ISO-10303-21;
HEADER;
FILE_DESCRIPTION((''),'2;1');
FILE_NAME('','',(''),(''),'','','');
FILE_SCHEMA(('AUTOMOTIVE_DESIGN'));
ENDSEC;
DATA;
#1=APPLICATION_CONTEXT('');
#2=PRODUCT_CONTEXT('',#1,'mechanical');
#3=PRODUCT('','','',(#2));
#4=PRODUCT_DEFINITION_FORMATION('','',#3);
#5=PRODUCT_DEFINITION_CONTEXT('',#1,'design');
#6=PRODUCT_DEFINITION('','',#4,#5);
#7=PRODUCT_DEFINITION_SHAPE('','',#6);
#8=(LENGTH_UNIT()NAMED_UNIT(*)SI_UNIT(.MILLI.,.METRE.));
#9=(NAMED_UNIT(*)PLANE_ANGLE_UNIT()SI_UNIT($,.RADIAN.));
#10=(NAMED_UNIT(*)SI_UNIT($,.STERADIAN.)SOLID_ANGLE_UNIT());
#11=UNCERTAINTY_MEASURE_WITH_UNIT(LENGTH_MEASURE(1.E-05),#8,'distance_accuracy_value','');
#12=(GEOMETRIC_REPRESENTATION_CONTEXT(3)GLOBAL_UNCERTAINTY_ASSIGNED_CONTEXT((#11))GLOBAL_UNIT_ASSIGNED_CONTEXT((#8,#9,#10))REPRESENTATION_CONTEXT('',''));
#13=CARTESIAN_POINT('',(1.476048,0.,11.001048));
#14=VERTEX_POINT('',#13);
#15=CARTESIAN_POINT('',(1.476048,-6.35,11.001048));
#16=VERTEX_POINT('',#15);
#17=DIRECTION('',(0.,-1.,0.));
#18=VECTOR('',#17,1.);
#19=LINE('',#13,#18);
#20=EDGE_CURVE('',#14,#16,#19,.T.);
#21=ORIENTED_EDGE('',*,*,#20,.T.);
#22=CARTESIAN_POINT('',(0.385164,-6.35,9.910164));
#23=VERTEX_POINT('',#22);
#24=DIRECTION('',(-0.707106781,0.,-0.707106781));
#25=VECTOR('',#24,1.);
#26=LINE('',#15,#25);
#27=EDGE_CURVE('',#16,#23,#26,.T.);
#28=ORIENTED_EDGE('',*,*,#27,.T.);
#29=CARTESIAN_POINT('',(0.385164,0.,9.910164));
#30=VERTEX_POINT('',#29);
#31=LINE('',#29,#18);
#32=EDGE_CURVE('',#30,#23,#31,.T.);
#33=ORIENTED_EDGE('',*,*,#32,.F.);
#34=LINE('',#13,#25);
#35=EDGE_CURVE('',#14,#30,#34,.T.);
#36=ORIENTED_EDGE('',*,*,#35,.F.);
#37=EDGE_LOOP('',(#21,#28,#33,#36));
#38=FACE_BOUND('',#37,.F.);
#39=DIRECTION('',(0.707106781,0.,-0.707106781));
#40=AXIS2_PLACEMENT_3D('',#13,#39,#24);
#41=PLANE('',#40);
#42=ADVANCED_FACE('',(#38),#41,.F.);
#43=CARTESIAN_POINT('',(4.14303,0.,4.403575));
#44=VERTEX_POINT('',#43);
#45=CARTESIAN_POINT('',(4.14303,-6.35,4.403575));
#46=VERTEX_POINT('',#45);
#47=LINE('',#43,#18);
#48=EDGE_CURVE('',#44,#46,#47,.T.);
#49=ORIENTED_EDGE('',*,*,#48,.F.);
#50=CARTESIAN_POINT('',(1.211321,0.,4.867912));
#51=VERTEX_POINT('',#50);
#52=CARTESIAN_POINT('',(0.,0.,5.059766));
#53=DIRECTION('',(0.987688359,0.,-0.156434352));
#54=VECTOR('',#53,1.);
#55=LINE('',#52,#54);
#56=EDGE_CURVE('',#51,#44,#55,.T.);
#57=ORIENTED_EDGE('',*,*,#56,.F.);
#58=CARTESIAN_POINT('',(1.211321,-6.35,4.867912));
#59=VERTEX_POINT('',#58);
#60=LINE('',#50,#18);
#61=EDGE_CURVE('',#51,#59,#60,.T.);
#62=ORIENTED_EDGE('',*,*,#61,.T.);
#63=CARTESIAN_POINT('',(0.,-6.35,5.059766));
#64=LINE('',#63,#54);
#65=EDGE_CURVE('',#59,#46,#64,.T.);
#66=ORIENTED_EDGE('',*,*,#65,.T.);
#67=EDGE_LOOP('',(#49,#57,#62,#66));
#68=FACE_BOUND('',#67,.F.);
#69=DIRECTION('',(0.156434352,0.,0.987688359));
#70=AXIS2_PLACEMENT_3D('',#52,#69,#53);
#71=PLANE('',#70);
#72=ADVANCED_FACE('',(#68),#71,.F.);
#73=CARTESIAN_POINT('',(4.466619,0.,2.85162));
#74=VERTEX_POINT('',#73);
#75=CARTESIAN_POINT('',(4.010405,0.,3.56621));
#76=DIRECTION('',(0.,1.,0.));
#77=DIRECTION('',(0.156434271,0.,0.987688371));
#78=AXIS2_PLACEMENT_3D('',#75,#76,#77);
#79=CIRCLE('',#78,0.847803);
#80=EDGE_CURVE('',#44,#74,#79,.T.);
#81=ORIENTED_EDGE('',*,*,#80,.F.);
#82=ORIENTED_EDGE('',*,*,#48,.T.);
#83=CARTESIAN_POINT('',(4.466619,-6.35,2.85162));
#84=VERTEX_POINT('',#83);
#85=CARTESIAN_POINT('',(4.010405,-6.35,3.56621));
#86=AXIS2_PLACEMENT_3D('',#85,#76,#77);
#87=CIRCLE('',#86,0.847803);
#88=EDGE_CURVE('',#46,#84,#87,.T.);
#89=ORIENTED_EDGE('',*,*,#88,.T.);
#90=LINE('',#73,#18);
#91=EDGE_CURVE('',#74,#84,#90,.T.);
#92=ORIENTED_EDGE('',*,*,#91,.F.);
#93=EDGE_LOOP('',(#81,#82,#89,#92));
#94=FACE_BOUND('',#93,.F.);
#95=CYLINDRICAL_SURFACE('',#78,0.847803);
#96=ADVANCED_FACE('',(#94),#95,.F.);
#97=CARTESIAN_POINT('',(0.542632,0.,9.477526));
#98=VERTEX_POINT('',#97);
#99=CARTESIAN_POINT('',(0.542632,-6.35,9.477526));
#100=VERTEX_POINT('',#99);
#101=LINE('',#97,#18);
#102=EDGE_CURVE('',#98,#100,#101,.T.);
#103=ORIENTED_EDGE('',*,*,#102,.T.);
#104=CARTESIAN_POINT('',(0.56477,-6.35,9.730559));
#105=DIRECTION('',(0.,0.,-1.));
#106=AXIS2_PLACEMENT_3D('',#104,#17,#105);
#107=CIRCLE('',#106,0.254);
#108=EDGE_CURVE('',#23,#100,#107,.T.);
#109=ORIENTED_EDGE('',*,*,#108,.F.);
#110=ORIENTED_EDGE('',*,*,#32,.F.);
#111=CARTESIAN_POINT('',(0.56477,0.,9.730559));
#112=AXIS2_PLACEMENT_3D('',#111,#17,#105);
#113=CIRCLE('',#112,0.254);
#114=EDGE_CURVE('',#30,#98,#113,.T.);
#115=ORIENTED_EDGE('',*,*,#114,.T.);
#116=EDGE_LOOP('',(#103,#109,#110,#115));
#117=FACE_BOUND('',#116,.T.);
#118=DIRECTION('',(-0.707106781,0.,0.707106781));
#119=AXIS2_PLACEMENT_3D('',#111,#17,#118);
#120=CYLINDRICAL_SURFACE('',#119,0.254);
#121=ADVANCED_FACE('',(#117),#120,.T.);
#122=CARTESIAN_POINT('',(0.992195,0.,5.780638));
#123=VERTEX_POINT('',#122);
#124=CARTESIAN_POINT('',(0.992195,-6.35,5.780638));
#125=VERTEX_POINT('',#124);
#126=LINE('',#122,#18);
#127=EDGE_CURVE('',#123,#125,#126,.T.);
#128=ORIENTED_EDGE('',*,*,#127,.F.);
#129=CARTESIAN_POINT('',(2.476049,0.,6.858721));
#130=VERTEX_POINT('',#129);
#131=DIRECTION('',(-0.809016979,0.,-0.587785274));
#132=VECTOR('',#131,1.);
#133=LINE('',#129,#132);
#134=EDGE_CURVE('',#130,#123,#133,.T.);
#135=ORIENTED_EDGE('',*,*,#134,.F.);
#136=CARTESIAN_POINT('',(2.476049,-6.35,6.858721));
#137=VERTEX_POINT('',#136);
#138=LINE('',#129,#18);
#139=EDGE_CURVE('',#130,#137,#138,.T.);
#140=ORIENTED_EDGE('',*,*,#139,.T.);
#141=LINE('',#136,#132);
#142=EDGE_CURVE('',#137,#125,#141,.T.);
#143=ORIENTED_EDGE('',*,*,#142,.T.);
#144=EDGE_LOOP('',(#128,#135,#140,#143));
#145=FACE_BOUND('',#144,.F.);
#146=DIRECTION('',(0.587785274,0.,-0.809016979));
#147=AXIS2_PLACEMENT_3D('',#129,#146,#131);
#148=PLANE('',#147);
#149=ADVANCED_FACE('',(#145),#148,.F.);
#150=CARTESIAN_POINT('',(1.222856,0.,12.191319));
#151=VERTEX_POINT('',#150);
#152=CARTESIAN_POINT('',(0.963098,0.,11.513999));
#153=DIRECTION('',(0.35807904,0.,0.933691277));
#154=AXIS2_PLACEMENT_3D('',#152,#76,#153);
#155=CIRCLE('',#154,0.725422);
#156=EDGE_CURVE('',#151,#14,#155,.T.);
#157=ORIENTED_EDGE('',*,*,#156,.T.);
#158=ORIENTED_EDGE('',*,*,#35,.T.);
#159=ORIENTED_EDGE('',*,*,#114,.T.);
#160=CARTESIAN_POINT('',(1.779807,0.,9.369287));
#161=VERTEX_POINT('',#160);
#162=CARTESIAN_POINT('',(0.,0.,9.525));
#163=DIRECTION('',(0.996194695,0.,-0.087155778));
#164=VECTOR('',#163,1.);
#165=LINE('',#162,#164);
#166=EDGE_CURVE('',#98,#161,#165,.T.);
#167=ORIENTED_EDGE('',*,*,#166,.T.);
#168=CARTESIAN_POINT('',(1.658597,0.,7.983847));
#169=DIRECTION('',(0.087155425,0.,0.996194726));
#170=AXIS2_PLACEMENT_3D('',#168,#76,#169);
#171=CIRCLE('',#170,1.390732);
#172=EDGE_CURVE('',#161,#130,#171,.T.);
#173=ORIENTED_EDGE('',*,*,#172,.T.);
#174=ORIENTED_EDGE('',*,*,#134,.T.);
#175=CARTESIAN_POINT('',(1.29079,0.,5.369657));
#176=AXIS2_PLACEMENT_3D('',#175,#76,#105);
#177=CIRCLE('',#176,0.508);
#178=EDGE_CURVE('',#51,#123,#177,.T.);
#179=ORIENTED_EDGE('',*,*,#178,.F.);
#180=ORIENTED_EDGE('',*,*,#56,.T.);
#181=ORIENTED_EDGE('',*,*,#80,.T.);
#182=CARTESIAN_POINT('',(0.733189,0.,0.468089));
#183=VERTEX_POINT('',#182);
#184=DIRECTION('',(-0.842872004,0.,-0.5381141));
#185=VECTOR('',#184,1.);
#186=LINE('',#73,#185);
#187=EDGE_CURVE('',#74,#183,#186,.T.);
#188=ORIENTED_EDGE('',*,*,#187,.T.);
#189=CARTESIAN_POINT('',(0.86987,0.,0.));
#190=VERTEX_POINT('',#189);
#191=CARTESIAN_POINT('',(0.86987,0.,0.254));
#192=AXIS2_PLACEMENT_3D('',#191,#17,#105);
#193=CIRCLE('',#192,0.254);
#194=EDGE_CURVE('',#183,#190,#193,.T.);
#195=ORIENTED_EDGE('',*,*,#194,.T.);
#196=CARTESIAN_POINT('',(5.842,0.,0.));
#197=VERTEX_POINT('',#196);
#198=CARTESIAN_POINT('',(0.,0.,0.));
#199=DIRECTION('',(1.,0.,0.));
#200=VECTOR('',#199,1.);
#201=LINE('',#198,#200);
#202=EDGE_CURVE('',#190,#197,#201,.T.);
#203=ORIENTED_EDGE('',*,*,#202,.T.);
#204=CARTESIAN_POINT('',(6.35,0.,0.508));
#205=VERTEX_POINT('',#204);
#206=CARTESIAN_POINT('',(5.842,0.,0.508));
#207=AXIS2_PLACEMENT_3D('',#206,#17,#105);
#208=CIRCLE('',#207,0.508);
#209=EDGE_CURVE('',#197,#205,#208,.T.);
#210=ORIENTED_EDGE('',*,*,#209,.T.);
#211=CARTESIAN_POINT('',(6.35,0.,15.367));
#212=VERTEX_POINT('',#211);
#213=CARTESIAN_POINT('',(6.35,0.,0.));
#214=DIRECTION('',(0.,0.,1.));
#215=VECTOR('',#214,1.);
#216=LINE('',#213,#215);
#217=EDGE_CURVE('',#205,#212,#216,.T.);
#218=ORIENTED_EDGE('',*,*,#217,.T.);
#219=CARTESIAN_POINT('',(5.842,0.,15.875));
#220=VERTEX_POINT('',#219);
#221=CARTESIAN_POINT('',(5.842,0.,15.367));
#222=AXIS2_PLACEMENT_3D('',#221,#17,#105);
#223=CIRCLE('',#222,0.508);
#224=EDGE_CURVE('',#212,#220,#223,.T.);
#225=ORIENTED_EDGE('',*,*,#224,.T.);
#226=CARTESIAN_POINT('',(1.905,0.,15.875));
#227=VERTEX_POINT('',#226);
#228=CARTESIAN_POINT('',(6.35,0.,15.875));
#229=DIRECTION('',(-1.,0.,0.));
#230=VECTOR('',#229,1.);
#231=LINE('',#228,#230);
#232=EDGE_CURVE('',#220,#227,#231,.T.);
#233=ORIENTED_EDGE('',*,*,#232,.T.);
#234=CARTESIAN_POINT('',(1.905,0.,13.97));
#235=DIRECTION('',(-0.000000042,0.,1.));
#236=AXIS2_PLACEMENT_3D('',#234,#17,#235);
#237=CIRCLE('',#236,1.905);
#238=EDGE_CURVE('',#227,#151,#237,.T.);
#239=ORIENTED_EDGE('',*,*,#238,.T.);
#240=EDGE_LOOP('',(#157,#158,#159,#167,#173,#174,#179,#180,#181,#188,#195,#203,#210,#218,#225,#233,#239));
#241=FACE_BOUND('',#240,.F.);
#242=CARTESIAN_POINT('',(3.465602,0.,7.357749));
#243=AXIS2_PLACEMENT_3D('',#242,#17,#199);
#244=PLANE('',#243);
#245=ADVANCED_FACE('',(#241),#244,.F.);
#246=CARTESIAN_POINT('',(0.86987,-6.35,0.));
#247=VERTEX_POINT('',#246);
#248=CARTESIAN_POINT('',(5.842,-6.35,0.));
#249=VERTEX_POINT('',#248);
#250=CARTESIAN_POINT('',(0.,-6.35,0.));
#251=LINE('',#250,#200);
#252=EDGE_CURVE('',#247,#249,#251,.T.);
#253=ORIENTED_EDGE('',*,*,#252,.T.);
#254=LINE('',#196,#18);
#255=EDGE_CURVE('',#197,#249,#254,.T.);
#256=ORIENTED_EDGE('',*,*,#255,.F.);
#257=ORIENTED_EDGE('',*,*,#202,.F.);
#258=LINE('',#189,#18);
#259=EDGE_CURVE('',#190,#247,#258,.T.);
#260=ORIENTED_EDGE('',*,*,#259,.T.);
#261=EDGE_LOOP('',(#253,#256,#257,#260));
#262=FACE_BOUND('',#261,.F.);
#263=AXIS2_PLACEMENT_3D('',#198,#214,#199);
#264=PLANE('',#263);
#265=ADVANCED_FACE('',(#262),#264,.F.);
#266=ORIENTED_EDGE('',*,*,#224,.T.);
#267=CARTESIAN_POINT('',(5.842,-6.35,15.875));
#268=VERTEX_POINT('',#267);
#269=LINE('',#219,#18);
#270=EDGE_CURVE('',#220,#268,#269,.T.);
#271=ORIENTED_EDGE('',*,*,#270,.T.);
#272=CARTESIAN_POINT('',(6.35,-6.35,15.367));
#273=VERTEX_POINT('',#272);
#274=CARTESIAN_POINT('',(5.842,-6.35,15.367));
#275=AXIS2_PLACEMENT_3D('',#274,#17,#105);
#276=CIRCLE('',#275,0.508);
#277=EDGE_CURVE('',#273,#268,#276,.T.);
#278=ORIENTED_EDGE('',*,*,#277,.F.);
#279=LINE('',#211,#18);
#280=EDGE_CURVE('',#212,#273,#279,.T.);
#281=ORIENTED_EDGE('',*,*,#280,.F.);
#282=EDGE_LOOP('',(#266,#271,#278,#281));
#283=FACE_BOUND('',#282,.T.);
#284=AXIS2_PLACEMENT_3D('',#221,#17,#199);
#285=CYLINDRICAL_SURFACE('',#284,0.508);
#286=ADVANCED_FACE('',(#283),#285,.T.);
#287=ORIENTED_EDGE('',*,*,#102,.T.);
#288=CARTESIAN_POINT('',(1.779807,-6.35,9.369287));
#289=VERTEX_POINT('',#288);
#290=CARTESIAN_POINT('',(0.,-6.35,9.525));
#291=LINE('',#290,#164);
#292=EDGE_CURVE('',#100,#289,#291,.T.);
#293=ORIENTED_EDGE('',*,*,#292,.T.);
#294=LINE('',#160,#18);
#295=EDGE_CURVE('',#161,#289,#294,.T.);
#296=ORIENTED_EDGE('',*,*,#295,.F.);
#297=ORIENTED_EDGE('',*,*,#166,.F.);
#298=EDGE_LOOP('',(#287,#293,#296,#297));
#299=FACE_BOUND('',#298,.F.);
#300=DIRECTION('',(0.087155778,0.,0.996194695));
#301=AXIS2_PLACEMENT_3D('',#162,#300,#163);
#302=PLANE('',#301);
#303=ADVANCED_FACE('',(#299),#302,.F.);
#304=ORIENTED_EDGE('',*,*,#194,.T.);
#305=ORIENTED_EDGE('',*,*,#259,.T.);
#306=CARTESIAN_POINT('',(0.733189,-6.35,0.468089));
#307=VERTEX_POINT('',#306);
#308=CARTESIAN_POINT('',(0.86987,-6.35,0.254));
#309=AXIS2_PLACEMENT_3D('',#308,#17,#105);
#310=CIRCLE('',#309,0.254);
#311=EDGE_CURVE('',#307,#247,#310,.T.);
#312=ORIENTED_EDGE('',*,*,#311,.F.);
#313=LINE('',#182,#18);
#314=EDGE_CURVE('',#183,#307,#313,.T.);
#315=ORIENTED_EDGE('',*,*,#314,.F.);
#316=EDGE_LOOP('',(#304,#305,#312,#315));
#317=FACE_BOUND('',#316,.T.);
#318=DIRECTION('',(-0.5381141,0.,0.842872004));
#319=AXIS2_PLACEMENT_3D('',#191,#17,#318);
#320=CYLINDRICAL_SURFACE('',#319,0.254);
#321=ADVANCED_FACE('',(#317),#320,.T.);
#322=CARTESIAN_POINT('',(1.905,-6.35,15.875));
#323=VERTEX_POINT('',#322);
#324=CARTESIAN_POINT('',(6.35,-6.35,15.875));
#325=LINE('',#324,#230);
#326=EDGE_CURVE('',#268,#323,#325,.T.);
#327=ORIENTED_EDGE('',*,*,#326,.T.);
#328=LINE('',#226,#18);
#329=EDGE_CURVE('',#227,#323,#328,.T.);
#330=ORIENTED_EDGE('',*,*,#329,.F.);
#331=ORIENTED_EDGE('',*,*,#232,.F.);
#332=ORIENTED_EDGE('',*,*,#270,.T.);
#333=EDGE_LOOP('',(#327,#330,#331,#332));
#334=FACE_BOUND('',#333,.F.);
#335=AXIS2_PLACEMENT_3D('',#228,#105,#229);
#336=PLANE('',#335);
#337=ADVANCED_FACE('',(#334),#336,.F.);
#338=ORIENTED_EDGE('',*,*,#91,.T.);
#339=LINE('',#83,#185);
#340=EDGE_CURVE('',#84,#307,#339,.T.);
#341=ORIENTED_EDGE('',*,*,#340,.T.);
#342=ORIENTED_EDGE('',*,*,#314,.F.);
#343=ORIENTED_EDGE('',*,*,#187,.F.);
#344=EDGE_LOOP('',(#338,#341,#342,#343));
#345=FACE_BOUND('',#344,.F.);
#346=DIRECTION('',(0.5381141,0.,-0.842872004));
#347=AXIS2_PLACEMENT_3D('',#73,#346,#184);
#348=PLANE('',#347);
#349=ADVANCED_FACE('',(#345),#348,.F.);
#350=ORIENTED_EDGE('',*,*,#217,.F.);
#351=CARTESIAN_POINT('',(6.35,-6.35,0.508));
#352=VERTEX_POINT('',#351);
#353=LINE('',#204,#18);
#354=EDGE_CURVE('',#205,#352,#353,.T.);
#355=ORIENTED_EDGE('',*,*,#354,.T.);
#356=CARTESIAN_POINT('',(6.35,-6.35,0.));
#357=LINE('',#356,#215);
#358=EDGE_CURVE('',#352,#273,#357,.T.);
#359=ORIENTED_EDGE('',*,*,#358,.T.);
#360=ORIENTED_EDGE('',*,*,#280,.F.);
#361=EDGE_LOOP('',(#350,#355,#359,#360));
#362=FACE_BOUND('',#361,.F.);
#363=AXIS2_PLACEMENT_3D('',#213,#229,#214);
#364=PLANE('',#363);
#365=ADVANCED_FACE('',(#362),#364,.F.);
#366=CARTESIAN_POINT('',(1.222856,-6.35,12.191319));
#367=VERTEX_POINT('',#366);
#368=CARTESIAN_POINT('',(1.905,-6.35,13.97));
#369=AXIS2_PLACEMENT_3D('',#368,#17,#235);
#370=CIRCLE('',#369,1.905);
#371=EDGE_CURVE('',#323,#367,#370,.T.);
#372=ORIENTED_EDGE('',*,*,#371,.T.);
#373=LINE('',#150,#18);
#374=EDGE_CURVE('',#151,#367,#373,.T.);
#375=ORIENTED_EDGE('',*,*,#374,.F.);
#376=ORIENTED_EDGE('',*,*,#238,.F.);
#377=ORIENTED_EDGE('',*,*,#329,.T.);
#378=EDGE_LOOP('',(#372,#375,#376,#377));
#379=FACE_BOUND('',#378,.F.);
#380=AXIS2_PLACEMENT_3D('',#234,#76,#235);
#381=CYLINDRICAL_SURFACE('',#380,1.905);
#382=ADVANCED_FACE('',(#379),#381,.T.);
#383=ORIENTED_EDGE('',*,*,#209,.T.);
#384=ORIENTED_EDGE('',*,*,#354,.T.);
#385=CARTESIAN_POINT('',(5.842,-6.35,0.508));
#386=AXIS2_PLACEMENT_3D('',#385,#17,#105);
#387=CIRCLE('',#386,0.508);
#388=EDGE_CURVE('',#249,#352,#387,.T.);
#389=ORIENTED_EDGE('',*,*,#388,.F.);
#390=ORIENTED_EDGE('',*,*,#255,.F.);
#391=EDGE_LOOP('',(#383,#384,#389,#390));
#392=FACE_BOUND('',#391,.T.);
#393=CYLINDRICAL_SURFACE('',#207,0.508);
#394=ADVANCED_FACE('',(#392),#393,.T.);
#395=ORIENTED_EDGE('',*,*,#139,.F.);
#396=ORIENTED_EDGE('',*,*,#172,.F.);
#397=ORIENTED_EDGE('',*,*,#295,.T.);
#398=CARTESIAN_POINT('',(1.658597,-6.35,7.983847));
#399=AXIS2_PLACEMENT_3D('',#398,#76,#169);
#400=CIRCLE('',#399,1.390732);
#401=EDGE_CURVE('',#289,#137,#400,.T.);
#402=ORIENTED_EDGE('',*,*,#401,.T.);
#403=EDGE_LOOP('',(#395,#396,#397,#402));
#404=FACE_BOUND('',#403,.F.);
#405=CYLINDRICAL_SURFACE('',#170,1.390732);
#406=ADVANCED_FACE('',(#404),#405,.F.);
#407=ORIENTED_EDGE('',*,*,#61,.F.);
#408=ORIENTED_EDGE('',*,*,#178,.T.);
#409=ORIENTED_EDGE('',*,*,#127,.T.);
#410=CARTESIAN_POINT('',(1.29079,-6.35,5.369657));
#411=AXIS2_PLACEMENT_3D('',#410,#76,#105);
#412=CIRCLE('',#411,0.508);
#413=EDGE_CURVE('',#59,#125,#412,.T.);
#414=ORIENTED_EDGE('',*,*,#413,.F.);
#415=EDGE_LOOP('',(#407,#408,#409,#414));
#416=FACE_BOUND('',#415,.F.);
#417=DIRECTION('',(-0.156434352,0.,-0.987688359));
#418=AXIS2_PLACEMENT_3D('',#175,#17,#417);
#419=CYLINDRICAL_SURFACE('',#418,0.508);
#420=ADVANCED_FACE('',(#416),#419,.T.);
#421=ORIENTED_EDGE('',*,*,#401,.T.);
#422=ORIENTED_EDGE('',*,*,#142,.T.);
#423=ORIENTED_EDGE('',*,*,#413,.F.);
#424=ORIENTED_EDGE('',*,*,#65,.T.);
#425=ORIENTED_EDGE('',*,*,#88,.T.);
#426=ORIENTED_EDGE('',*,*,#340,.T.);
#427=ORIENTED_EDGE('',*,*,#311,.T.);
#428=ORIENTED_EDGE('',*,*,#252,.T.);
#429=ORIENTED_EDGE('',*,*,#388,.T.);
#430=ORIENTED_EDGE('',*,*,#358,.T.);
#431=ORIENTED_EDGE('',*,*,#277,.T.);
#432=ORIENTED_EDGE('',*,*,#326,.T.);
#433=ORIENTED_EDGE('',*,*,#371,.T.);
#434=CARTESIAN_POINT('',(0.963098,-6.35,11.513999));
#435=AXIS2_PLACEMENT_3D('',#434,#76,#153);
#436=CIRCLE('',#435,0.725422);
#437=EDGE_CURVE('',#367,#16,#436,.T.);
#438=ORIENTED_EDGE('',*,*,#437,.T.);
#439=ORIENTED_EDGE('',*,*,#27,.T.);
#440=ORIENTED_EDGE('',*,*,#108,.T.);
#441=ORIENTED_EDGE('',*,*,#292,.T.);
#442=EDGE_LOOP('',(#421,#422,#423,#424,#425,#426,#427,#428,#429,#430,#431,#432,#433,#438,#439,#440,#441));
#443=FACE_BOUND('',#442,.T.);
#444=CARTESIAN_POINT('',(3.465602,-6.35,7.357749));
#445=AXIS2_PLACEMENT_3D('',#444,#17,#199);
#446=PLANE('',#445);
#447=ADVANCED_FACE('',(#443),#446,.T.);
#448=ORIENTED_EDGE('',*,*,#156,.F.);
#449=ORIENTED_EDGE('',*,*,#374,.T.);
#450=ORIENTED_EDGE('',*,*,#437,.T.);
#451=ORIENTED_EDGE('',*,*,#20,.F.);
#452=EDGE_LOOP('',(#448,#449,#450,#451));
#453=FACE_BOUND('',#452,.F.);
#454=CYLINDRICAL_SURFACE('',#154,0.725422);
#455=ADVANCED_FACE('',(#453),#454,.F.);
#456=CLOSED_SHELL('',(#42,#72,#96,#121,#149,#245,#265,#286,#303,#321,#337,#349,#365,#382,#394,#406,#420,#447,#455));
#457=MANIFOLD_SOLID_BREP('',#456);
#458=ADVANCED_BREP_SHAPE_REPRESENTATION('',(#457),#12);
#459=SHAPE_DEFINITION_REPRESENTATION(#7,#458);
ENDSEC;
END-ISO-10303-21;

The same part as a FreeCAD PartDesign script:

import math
import FreeCAD as App
import Part
import Sketcher
from FreeCAD import Vector
Q = App.Units.Quantity


def edges_at(feature, points):
    """Names of the edges that pass closest to the given points."""
    edges = feature.Shape.Edges
    near = lambda p: min(range(len(edges)), key=lambda i: edges[i].distToShape(Part.Vertex(*p))[0])
    return sorted({f"Edge{near(p) + 1}" for p in points})

doc = App.newDocument("Part")
body = doc.addObject("PartDesign::Body", "Body")

# Sketch on XZ plane
sketch1 = body.newObject("Sketcher::SketchObject", "Sketch")
sketch1.AttachmentSupport = (doc.getObject("XZ_Plane"), [""])
sketch1.MapMode = "FlatFace"
sketch1.addGeometry([
    Part.LineSegment(Vector(4.466619, 2.85162, 0), Vector(0, 0, 0)),  # 0
    Part.LineSegment(Vector(0, 0, 0), Vector(6.35, 0, 0)),  # 1
    Part.LineSegment(Vector(6.35, 0, 0), Vector(6.35, 15.875, 0)),  # 2
    Part.LineSegment(Vector(6.35, 15.875, 0), Vector(1.905, 15.875, 0)),  # 3
    Part.ArcOfCircle(Part.Circle(Vector(1.905, 13.97, 0), Vector(0, 0, 1), 1.905), math.radians(90.000002), math.radians(249.01762)),  # 4
    Part.ArcOfCircle(Part.Circle(Vector(0.963098, 11.513999, 0), Vector(0, 0, 1), 0.725422), math.radians(-45.000037), math.radians(69.01773)),  # 5
    Part.LineSegment(Vector(1.476048, 11.001048, 0), Vector(0, 9.525, 0)),  # 6
    Part.LineSegment(Vector(0, 9.525, 0), Vector(1.779807, 9.369287, 0)),  # 7
    Part.ArcOfCircle(Part.Circle(Vector(1.658597, 7.983847, 0), Vector(0, 0, 1), 1.390732), math.radians(-54), math.radians(85.000018)),  # 8
    Part.LineSegment(Vector(2.476049, 6.858721, 0), Vector(0, 5.059766, 0)),  # 9
    Part.LineSegment(Vector(0, 5.059766, 0), Vector(4.14303, 4.403575, 0)),  # 10
    Part.ArcOfCircle(Part.Circle(Vector(4.010405, 3.56621, 0), Vector(0, 0, 1), 0.847803), math.radians(-57.444678), math.radians(81.000011)),  # 11
], False)
sketch1.addConstraint([
    Sketcher.Constraint("Coincident", 0, 2, 1, 1),
    Sketcher.Constraint("Coincident", 1, 2, 2, 1),
    Sketcher.Constraint("Coincident", 2, 2, 3, 1),
    Sketcher.Constraint("Tangent", 3, 2, 4, 1),
    Sketcher.Constraint("Tangent", 4, 2, 5, 2),
    Sketcher.Constraint("Tangent", 5, 1, 6, 1),
    Sketcher.Constraint("Coincident", 6, 2, 7, 1),
    Sketcher.Constraint("Tangent", 7, 2, 8, 2),
    Sketcher.Constraint("Tangent", 8, 1, 9, 1),
    Sketcher.Constraint("Coincident", 9, 2, 10, 1),
    Sketcher.Constraint("Tangent", 10, 2, 11, 2),
    Sketcher.Constraint("Tangent", 11, 1, 0, 1),
    Sketcher.Constraint("Horizontal", 1),
    Sketcher.Constraint("Vertical", 2),
    Sketcher.Constraint("Horizontal", 3),
    Sketcher.Constraint("Coincident", 0, 2, -1, 1),
    Sketcher.Constraint("PointOnObject", 6, 2, -2),
    Sketcher.Constraint("PointOnObject", 9, 2, -2),
    Sketcher.Constraint("Angle", 6, Q("-135 deg")),
    Sketcher.Constraint("Angle", 7, Q("-5.000002 deg")),
    Sketcher.Constraint("Angle", 9, Q("-143.999998 deg")),
    Sketcher.Constraint("Angle", 10, Q("-8.999993 deg")),
    Sketcher.Constraint("Radius", 4, Q("0.075 in")),
    Sketcher.Constraint("DistanceX", 1, 1, 1, 2, Q("0.25 in")),
    Sketcher.Constraint("DistanceX", 3, 2, 3, 1, Q("0.175 in")),
    Sketcher.Constraint("DistanceY", 2, 1, 2, 2, Q("0.625 in")),
    Sketcher.Constraint("DistanceY", -1, 1, 6, 2, Q("0.375 in")),
    Sketcher.Constraint("Radius", 5, Q("0.725422 mm")),
    Sketcher.Constraint("Radius", 8, Q("1.390732 mm")),
    Sketcher.Constraint("Radius", 11, Q("0.847803 mm")),
    Sketcher.Constraint("DistanceX", 5, 3, 8, 3, Q("0.695499 mm")),
    Sketcher.Constraint("DistanceY", 11, 1, 8, 1, Q("4.007101 mm")),
])
pad1 = body.newObject("PartDesign::Pad", "Pad")
pad1.Profile = sketch1
pad1.Length = Q("0.25 in")
doc.recompute()

fillet = body.newObject("PartDesign::Fillet", "Fillet")
fillet.Base = (pad1, edges_at(pad1, [(0, -3.175, 0), (0, -3.175, 9.525)]))
fillet.Radius = Q("0.01 in")
doc.recompute()

fillet2 = body.newObject("PartDesign::Fillet", "Fillet001")
fillet2.Base = (fillet, edges_at(fillet, [(6.35, -3.175, 0), (6.35, -3.175, 15.875), (0, -3.175, 5.06)]))
fillet2.Radius = Q("0.02 in")

doc.recompute()
